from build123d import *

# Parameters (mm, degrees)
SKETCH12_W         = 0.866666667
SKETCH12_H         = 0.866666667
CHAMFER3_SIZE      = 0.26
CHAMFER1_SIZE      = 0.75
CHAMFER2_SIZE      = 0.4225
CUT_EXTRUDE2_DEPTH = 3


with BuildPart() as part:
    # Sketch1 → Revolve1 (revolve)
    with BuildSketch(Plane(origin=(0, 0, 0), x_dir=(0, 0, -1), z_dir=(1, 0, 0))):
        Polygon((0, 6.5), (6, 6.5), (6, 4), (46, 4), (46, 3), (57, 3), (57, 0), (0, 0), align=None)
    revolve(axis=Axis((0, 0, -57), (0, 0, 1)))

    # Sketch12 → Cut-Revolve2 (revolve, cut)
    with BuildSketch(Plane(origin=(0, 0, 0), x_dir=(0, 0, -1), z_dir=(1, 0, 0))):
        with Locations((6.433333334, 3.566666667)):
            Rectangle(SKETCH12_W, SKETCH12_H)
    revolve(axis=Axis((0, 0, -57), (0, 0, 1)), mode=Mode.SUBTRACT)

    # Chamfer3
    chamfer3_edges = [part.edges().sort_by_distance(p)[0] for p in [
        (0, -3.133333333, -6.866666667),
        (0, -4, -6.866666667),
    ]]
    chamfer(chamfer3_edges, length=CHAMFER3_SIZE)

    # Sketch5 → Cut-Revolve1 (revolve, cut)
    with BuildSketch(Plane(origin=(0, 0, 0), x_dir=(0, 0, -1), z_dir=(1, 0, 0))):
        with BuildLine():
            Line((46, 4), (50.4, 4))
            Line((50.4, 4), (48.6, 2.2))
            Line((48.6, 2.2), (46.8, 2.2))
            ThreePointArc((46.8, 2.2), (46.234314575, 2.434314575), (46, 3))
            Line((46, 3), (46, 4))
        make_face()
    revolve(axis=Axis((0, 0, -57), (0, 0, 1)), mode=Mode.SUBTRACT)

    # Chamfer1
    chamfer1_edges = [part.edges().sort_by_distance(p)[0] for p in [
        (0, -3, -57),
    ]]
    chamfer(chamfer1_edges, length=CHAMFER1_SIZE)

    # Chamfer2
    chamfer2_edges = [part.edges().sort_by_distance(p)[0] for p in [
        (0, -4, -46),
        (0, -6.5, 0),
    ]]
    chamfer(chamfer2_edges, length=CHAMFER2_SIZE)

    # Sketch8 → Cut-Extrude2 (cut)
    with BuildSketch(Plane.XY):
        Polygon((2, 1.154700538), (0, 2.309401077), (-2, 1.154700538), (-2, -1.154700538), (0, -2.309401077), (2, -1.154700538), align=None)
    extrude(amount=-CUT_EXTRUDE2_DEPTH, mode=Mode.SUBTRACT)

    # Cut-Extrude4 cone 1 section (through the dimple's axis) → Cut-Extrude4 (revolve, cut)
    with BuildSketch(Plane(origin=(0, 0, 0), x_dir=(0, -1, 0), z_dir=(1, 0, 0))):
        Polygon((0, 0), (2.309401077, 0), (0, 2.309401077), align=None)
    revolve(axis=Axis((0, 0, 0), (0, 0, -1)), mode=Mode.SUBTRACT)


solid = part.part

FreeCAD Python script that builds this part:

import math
import FreeCAD as App
import Part
import Sketcher
Q = App.Units.Quantity


def edges_at(feature, points):
    """Names of the edges that pass closest to the given points."""
    edges = feature.Shape.Edges
    near = lambda p: min(range(len(edges)), key=lambda i: edges[i].distToShape(Part.Vertex(*p))[0])
    return sorted({f"Edge{near(p) + 1}" for p in points})


def add_polygon(sketch, points):
    """Adds a closed chain of lines whose ends are joined by coincident constraints."""
    first, n = sketch.GeometryCount, len(points)
    for a, b in zip(points, points[1:] + points[:1]):
        sketch.addGeometry(Part.LineSegment(App.Vector(*a, 0), App.Vector(*b, 0)), False)
    for i in range(n):
        sketch.addConstraint(Sketcher.Constraint("Coincident", first + i, 2, first + (i + 1) % n, 1))

doc = App.newDocument("Part")
body = doc.addObject("PartDesign::Body", "Body")

# Sketch on YZ plane
sketch1 = doc.addObject("Sketcher::SketchObject", "Sketch")
body.addObject(sketch1)
sketch1.AttachmentSupport = (doc.YZ_Plane, [""])
sketch1.MapMode = "FlatFace"
add_polygon(sketch1, [(6.5, -6), (6.5, 0), (0, 0), (0, -57), (3, -57), (3, -46), (4, -46), (4, -6)])  # lines 0-7
sketch1.addConstraint([
    Sketcher.Constraint("Vertical", 0),
    Sketcher.Constraint("Horizontal", 1),
    Sketcher.Constraint("Vertical", 2),
    Sketcher.Constraint("Horizontal", 3),
    Sketcher.Constraint("Vertical", 4),
    Sketcher.Constraint("Horizontal", 5),
    Sketcher.Constraint("Vertical", 6),
    Sketcher.Constraint("Horizontal", 7),
    Sketcher.Constraint("Coincident", 1, 2, -1, 1),
    Sketcher.Constraint("DistanceX", 3, 1, 3, 2, 3.0),
    Sketcher.Constraint("DistanceX", 5, 1, 5, 2, 1.0),
    Sketcher.Constraint("DistanceY", 0, 1, 0, 2, 6.0),
    Sketcher.Constraint("DistanceY", 2, 2, 2, 1, 57.0),
    Sketcher.Constraint("DistanceY", 4, 1, 4, 2, 11.0),
    Sketcher.Constraint("DistanceX", 1, 2, 1, 1, 6.5),
])
revolution = doc.addObject("PartDesign::Revolution", "Revolution")
body.addObject(revolution)
revolution.Profile = sketch1
revolution.ReferenceAxis = (sketch1, ["V_Axis"])
revolution.Angle = 360

# Sketch on YZ plane
sketch2 = doc.addObject("Sketcher::SketchObject", "Sketch001")
body.addObject(sketch2)
sketch2.AttachmentSupport = (doc.YZ_Plane, [""])
sketch2.MapMode = "FlatFace"
add_polygon(sketch2, [(4, -6), (3.1, -6), (3.1, -6.9), (4, -6.9)])  # lines 0-3
sketch2.addConstraint([
    Sketcher.Constraint("Horizontal", 0),
    Sketcher.Constraint("Vertical", 1),
    Sketcher.Constraint("Horizontal", 2),
    Sketcher.Constraint("Vertical", 3),
    Sketcher.Constraint("Equal", 2, 1),
    Sketcher.Constraint("DistanceY", 0, 2, -1, 1, 6.0),
    Sketcher.Constraint("DistanceX", -1, 1, 2, 2, 4.0),
    Sketcher.Constraint("DistanceX", 0, 2, 0, 1, 0.866667),
])
groove = doc.addObject("PartDesign::Groove", "Groove")
body.addObject(groove)
groove.Profile = sketch2
groove.ReferenceAxis = (sketch2, ["V_Axis"])
groove.Angle = 360
doc.recompute()

chamfer = doc.addObject("PartDesign::Chamfer", "Chamfer")
body.addObject(chamfer)
chamfer.Base = (groove, edges_at(groove, [(0, -3.133, -6.867), (0, -4, -6.867)]))
chamfer.Size = 0.26

# Sketch on YZ plane
sketch3 = doc.addObject("Sketcher::SketchObject", "Sketch002")
body.addObject(sketch3)
sketch3.AttachmentSupport = (doc.YZ_Plane, [""])
sketch3.MapMode = "FlatFace"
sketch3.addGeometry([
    Part.LineSegment(App.Vector(4, -50.4, 0), App.Vector(4, -46, 0)),  # 0
    Part.LineSegment(App.Vector(4, -46, 0), App.Vector(3, -46, 0)),  # 1
    Part.ArcOfCircle(Part.Circle(App.Vector(3, -46.8, 0), App.Vector(0, 0, 1), 0.8), math.radians(90), math.radians(180)),  # 2
    Part.LineSegment(App.Vector(2.2, -46.8, 0), App.Vector(2.2, -48.6, 0)),  # 3
    Part.LineSegment(App.Vector(2.2, -48.6, 0), App.Vector(4, -50.4, 0)),  # 4
], False)
sketch3.addConstraint([
    Sketcher.Constraint("Coincident", 0, 2, 1, 1),
    Sketcher.Constraint("Tangent", 1, 2, 2, 1),
    Sketcher.Constraint("Tangent", 2, 2, 3, 1),
    Sketcher.Constraint("Coincident", 3, 2, 4, 1),
    Sketcher.Constraint("Coincident", 4, 2, 0, 1),
    Sketcher.Constraint("Vertical", 0),
    Sketcher.Constraint("Horizontal", 1),
    Sketcher.Constraint("Vertical", 3),
    Sketcher.Constraint("Radius", 2, 0.8),
    Sketcher.Constraint("DistanceX", 1, 2, 1, 1, 1.0),
    Sketcher.Constraint("Angle", 4, Q("-45 deg")),
    Sketcher.Constraint("DistanceY", 0, 1, 0, 2, 4.4),
    Sketcher.Constraint("DistanceX", -1, 1, 2, 3, 3.0),
    Sketcher.Constraint("DistanceY", 0, 2, -1, 1, 46.0),
])
groove2 = doc.addObject("PartDesign::Groove", "Groove001")
body.addObject(groove2)
groove2.Profile = sketch3
groove2.ReferenceAxis = (sketch3, ["V_Axis"])
groove2.Angle = 360
doc.recompute()

chamfer2 = doc.addObject("PartDesign::Chamfer", "Chamfer001")
body.addObject(chamfer2)
chamfer2.Base = (groove2, edges_at(groove2, [(0, -3, -57)]))
chamfer2.Size = 0.75
doc.recompute()

chamfer3 = doc.addObject("PartDesign::Chamfer", "Chamfer002")
body.addObject(chamfer3)
chamfer3.Base = (chamfer2, edges_at(chamfer2, [(0, -4, -46), (0, -6.5, 0)]))
chamfer3.Size = 0.4225

# Sketch on XY plane
sketch4 = doc.addObject("Sketcher::SketchObject", "Sketch003")
body.addObject(sketch4)
sketch4.AttachmentSupport = (doc.XY_Plane, [""])
sketch4.MapMode = "FlatFace"
add_polygon(sketch4, [(2, 1.2), (0, 2.3), (-2, 1.2), (-2, -1.2), (0, -2.3), (2, -1.2)])  # lines 0-5
sketch4.addConstraint([
    Sketcher.Constraint("Vertical", 2),
    Sketcher.Constraint("Vertical", 5),
    Sketcher.Constraint("Symmetric", 0, 2, 3, 2, -1, 1),
    Sketcher.Constraint("Symmetric", 1, 2, 4, 2, -1, 1),
    Sketcher.Constraint("PointOnObject", 0, 2, -2),
    Sketcher.Constraint("Parallel", 0, 3),
    Sketcher.Constraint("Horizontal", 2, 2, 4, 2),
    Sketcher.Constraint("Angle", 0, Q("150 deg")),
    Sketcher.Constraint("DistanceX", 1, 2, -1, 1, 2.0),
    Sketcher.Constraint("DistanceY", 2, 2, 2, 1, 2.309401),
])
pocket1 = doc.addObject("PartDesign::Pocket", "Pocket")
body.addObject(pocket1)
pocket1.Profile = sketch4
pocket1.Length = 3

# Sketch on YZ plane
sketch5 = doc.addObject("Sketcher::SketchObject", "Sketch004")
body.addObject(sketch5)
sketch5.AttachmentSupport = (doc.YZ_Plane, [""])
sketch5.MapMode = "FlatFace"
add_polygon(sketch5, [(0, 0), (-2.3, 0), (0, -2.3)])  # lines 0-2
sketch5.addConstraint([
    Sketcher.Constraint("Horizontal", 0),
    Sketcher.Constraint("Vertical", 2),
    Sketcher.Constraint("Coincident", 2, 2, -1, 1),
    Sketcher.Constraint("Equal", 0, 2),
    Sketcher.Constraint("DistanceX", 0, 2, 0, 1, 2.309401),
])
groove3 = doc.addObject("PartDesign::Groove", "Groove002")
body.addObject(groove3)
groove3.Profile = sketch5
groove3.ReferenceAxis = (sketch5, ["V_Axis"])
groove3.Angle = 360

doc.recompute()
